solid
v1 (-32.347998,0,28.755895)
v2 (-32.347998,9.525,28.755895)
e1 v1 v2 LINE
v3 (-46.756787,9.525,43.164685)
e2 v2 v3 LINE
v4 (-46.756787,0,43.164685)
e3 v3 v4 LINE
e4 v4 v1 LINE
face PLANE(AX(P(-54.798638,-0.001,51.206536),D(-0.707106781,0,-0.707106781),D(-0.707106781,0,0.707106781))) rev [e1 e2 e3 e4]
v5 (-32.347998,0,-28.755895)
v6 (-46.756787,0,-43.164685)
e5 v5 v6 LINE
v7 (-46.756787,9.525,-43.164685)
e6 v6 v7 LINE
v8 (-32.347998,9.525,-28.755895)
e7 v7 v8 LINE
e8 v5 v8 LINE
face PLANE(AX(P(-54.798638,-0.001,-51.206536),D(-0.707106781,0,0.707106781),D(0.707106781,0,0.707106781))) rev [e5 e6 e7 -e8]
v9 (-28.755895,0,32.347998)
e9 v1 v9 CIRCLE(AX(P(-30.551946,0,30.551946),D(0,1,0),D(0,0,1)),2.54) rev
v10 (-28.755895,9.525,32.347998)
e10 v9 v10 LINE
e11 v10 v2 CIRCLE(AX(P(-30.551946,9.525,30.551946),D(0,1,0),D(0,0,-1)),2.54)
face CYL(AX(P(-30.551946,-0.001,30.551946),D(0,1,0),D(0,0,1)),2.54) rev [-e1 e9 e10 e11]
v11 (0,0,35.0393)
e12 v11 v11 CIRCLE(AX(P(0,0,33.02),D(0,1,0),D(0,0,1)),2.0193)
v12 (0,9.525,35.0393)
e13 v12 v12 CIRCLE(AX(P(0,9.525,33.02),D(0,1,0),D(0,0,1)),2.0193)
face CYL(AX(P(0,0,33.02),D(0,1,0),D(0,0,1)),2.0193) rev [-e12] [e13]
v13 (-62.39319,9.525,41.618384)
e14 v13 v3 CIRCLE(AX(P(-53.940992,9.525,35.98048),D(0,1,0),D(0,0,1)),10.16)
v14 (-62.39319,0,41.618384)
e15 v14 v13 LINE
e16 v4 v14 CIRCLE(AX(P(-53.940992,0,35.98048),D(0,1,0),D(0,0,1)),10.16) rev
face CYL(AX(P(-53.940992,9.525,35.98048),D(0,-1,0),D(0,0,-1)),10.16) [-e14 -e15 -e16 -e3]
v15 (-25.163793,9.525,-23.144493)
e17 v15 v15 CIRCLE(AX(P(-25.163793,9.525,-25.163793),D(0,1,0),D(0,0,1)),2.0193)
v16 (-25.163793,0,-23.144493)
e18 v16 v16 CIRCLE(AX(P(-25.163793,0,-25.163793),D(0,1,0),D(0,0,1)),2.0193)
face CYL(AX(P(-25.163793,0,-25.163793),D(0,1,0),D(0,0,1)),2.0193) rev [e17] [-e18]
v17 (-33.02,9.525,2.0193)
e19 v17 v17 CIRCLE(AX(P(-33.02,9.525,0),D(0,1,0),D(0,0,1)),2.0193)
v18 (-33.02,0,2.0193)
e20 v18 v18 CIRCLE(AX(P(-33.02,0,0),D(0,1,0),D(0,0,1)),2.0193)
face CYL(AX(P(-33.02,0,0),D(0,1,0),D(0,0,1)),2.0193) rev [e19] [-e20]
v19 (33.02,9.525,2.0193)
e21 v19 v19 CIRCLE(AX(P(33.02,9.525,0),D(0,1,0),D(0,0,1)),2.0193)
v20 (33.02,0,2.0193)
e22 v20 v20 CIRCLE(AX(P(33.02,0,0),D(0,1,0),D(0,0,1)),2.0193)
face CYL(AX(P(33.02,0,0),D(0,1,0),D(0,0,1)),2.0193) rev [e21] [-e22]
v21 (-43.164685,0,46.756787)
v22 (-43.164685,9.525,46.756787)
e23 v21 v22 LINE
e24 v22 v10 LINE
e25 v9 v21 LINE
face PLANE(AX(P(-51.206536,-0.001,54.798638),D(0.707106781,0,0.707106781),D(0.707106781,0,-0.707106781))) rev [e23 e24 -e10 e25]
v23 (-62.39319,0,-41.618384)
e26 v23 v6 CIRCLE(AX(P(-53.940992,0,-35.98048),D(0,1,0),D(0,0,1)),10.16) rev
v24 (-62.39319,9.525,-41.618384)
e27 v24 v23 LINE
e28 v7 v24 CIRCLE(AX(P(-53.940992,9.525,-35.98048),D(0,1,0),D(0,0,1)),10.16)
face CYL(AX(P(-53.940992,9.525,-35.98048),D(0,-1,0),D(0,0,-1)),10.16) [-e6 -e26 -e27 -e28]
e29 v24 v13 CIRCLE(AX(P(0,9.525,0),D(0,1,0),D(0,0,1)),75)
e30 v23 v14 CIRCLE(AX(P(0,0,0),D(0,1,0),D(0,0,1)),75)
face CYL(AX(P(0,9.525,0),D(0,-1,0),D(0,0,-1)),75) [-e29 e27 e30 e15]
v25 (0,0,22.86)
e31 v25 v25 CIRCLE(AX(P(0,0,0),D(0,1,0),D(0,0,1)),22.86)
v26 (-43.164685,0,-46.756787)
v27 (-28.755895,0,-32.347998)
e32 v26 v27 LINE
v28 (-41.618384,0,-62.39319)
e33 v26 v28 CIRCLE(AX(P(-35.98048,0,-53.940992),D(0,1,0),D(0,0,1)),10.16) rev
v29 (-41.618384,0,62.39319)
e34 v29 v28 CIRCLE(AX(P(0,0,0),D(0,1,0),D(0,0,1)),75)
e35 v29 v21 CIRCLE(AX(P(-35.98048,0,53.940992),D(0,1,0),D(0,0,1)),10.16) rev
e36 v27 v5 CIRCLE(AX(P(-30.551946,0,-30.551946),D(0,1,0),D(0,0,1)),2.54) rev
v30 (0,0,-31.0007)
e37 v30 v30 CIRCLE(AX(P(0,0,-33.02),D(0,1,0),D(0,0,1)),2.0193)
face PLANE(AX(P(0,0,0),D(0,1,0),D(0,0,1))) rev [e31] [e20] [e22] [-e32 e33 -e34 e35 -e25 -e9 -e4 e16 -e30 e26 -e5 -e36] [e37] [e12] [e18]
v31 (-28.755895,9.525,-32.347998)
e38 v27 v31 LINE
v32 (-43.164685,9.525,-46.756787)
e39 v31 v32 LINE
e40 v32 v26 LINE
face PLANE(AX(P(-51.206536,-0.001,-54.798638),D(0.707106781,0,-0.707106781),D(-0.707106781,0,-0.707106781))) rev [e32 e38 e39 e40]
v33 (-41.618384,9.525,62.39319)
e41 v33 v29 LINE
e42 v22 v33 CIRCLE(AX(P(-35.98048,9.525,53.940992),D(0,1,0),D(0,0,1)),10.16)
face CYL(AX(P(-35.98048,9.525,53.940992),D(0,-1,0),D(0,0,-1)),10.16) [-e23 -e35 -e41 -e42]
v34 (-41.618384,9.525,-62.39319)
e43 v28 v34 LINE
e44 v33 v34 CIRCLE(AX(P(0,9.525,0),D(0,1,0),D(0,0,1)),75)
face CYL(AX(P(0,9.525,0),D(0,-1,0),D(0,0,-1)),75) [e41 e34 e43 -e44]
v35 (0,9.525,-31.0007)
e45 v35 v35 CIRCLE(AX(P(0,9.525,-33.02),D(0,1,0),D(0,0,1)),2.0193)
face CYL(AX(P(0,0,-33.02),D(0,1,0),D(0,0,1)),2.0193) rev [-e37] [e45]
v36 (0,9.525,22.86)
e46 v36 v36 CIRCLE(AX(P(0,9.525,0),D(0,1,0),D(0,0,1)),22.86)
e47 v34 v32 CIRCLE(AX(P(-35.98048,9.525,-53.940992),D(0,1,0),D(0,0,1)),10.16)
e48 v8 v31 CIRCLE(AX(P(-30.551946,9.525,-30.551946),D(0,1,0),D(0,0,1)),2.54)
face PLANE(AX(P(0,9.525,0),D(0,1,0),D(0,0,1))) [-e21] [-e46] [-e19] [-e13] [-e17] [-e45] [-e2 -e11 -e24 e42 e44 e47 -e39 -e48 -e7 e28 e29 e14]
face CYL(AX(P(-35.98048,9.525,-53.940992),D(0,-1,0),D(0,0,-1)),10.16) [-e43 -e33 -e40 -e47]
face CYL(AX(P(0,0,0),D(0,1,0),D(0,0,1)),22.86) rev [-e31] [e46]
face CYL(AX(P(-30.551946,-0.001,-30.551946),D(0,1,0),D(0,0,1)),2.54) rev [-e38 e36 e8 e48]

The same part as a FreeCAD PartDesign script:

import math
import FreeCAD as App
import Part
import Sketcher
from FreeCAD import Vector
Q = App.Units.Quantity


def edges_at(feature, points):
    """Names of the edges that pass closest to the given points."""
    edges = feature.Shape.Edges
    near = lambda p: min(range(len(edges)), key=lambda i: edges[i].distToShape(Part.Vertex(*p))[0])
    return sorted({f"Edge{near(p) + 1}" for p in points})

doc = App.newDocument("Part")
params = doc.addObject("Spreadsheet::Sheet", "Params")
for row, (alias, value) in enumerate([
    ("pad1_length", "0.375 in"),
    ("sketch2_radius", "0.1 in"),
    ("sketch2_length", "1.25 in"),
    ("sketch3_radius", "0.1 in"),
    ("sketch3_length", "1.25 in"),
    ("fillet_radius", "0.4 in"),
    ("sketch4_diameter", "1.8 in"),
    ("sketch4_diameter2", "0.159 in"),
    ("sketch5_diameter", "0.159 in"),
], start=1):
    params.set(f"A{row}", alias)
    params.set(f"B{row}", "=" + value)
    params.setAlias(f"B{row}", alias)

body = doc.addObject("PartDesign::Body", "Body")

sketch1 = body.newObject("Sketcher::SketchObject", "Sketch")
sketch1.AttachmentSupport = (doc.getObject("XZ_Plane"), [""])
sketch1.MapMode = "FlatFace"
sketch1.addGeometry(Part.Circle(Vector(0, 0, 0), Vector(0, 0, 1), 75), False)
sketch1.addConstraint([
    Sketcher.Constraint("Coincident", 0, 3, -1, 1),
    Sketcher.Constraint("Diameter", 0, Q("150 mm")),
])
pad1 = body.newObject("PartDesign::Pad", "Pad")
pad1.Profile = sketch1
pad1.setExpression("Length", "Params.pad1_length")
pad1.Reversed = True

sketch2 = body.newObject("Sketcher::SketchObject", "Sketch001")
sketch2.AttachmentSupport = (doc.getObject("XZ_Plane"), [""])
sketch2.MapMode = "FlatFace"
sketch2.AttachmentOffset = App.Placement(Vector(0, 0, -0.375 * 25.4), App.Rotation())
sketch2.addGeometry([
    Part.LineSegment(Vector(-54.8, -51.2, 0), Vector(-32.3, -28.8, 0)),
    Part.ArcOfCircle(Part.Circle(Vector(-30.6, -30.6, 0), Vector(0, 0, 1), 2.5), math.radians(-45), math.radians(135)),
    Part.LineSegment(Vector(-28.8, -32.3, 0), Vector(-51.2, -54.8, 0)),
    Part.ArcOfCircle(Part.Circle(Vector(0, 0, 0), Vector(0, 0, 1), 75), math.radians(-136.94), math.radians(-133.06)),
], False)
sketch2.addConstraint([
    Sketcher.Constraint("Tangent", 0, 2, 1, 2),
    Sketcher.Constraint("Tangent", 1, 1, 2, 1),
    Sketcher.Constraint("Coincident", 2, 2, 3, 2),
    Sketcher.Constraint("Coincident", 3, 1, 0, 1),
    Sketcher.Constraint("Coincident", 3, 3, -1, 1),
    Sketcher.Constraint("Parallel", 0, 2),
    Sketcher.Constraint("Equal", 0, 2),
    Sketcher.Constraint("Radius", 1, Q("0.1 in")),
    Sketcher.Constraint("Angle", 0, Q("45 deg")),
    Sketcher.Constraint("Distance", 0, Q("1.25 in")),
    Sketcher.Constraint("Radius", 3, Q("75 mm")),
])
sketch2.setExpression("Constraints[7]", "Params.sketch2_radius")
sketch2.setExpression("Constraints[9]", "Params.sketch2_length")
pocket1 = body.newObject("PartDesign::Pocket", "Pocket")
pocket1.Profile = sketch2
pocket1.Type = "UpToFirst"
pocket1.Reversed = True

sketch3 = body.newObject("Sketcher::SketchObject", "Sketch002")
sketch3.AttachmentSupport = (doc.getObject("XZ_Plane"), [""])
sketch3.MapMode = "FlatFace"
sketch3.AttachmentOffset = App.Placement(Vector(0, 0, -0.375 * 25.4), App.Rotation())
sketch3.addGeometry([
    Part.LineSegment(Vector(-51.2, 54.8, 0), Vector(-28.8, 32.3, 0)),
    Part.ArcOfCircle(Part.Circle(Vector(-30.6, 30.6, 0), Vector(0, 0, 1), 2.5), math.radians(-135), math.radians(45)),
    Part.LineSegment(Vector(-32.3, 28.8, 0), Vector(-54.8, 51.2, 0)),
    Part.ArcOfCircle(Part.Circle(Vector(0, 0, 0), Vector(0, 0, 1), 75), math.radians(133.06), math.radians(136.94)),
], False)
sketch3.addConstraint([
    Sketcher.Constraint("Tangent", 0, 2, 1, 2),
    Sketcher.Constraint("Tangent", 1, 1, 2, 1),
    Sketcher.Constraint("Coincident", 2, 2, 3, 2),
    Sketcher.Constraint("Coincident", 3, 1, 0, 1),
    Sketcher.Constraint("Coincident", 3, 3, -1, 1),
    Sketcher.Constraint("Parallel", 0, 2),
    Sketcher.Constraint("Equal", 0, 2),
    Sketcher.Constraint("Radius", 1, Q("0.1 in")),
    Sketcher.Constraint("Angle", 0, Q("-45 deg")),
    Sketcher.Constraint("Distance", 0, Q("1.25 in")),
    Sketcher.Constraint("Radius", 3, Q("75 mm")),
])
sketch3.setExpression("Constraints[7]", "Params.sketch3_radius")
sketch3.setExpression("Constraints[9]", "Params.sketch3_length")
pocket2 = body.newObject("PartDesign::Pocket", "Pocket001")
pocket2.Profile = sketch3
pocket2.Type = "UpToFirst"
pocket2.Reversed = True
doc.recompute()

fillet = body.newObject("PartDesign::Fillet", "Fillet")
fillet.Base = (pocket2, edges_at(pocket2, [
    (-51.207, 4.763, 54.799),
    (-54.799, 4.763, 51.207),
    (-54.799, 4.763, -51.207),
    (-51.207, 4.763, -54.799),
]))
fillet.setExpression("Radius", "Params.fillet_radius")

sketch4 = body.newObject("Sketcher::SketchObject", "Sketch003")
sketch4.AttachmentSupport = (doc.getObject("XZ_Plane"), [""])
sketch4.MapMode = "FlatFace"
sketch4.AttachmentOffset = App.Placement(Vector(0, 0, -0.375 * 25.4), App.Rotation())
sketch4.addGeometry([
    Part.Circle(Vector(0, 0, 0), Vector(0, 0, 1), 22.9),
    Part.Circle(Vector(0, -33, 0), Vector(0, 0, 1), 2),
    Part.Circle(Vector(33, 0, 0), Vector(0, 0, 1), 2),
    Part.Circle(Vector(0, 33, 0), Vector(0, 0, 1), 2),
    Part.Circle(Vector(-33, 0, 0), Vector(0, 0, 1), 2),
], False)
sketch4.addConstraint([
    Sketcher.Constraint("Coincident", 0, 3, -1, 1),
    Sketcher.Constraint("Equal", 1, 2),
    Sketcher.Constraint("Equal", 2, 3),
    Sketcher.Constraint("Equal", 3, 4),
    Sketcher.Constraint("Symmetric", 1, 3, 3, 3, -1, 1),
    Sketcher.Constraint("Symmetric", 2, 3, 4, 3, -1, 1),
    Sketcher.Constraint("PointOnObject", 1, 3, -2),
    Sketcher.Constraint("PointOnObject", 2, 3, -1),
    Sketcher.Constraint("Diameter", 0, Q("1.8 in")),
    Sketcher.Constraint("Diameter", 1, Q("0.159 in")),
    Sketcher.Constraint("DistanceY", 1, 3, -1, 1, Q("1.3 in")),
    Sketcher.Constraint("DistanceX", -1, 1, 2, 3, Q("1.3 in")),
])
sketch4.setExpression("Constraints[8]", "Params.sketch4_diameter")
sketch4.setExpression("Constraints[9]", "Params.sketch4_diameter2")
pocket3 = body.newObject("PartDesign::Pocket", "Pocket002")
pocket3.Profile = sketch4
pocket3.Type = "ThroughAll"
pocket3.Reversed = True

sketch5 = body.newObject("Sketcher::SketchObject", "Sketch004")
sketch5.AttachmentSupport = (doc.getObject("XZ_Plane"), [""])
sketch5.MapMode = "FlatFace"
sketch5.AttachmentOffset = App.Placement(Vector(0, 0, -0.375 * 25.4), App.Rotation())
sketch5.addGeometry(Part.Circle(Vector(-25.2, -25.2, 0), Vector(0, 0, 1), 2), False)
sketch5.addConstraint([
    Sketcher.Constraint("Diameter", 0, Q("0.159 in")),
    Sketcher.Constraint("DistanceX", 0, 3, -1, 1, Q("25.163793 mm")),
    Sketcher.Constraint("DistanceY", 0, 3, -1, 1, Q("25.163793 mm")),
])
sketch5.setExpression("Constraints[0]", "Params.sketch5_diameter")
pocket4 = body.newObject("PartDesign::Pocket", "Pocket003")
pocket4.Profile = sketch5
pocket4.Type = "ThroughAll"
pocket4.Reversed = True

doc.recompute()
